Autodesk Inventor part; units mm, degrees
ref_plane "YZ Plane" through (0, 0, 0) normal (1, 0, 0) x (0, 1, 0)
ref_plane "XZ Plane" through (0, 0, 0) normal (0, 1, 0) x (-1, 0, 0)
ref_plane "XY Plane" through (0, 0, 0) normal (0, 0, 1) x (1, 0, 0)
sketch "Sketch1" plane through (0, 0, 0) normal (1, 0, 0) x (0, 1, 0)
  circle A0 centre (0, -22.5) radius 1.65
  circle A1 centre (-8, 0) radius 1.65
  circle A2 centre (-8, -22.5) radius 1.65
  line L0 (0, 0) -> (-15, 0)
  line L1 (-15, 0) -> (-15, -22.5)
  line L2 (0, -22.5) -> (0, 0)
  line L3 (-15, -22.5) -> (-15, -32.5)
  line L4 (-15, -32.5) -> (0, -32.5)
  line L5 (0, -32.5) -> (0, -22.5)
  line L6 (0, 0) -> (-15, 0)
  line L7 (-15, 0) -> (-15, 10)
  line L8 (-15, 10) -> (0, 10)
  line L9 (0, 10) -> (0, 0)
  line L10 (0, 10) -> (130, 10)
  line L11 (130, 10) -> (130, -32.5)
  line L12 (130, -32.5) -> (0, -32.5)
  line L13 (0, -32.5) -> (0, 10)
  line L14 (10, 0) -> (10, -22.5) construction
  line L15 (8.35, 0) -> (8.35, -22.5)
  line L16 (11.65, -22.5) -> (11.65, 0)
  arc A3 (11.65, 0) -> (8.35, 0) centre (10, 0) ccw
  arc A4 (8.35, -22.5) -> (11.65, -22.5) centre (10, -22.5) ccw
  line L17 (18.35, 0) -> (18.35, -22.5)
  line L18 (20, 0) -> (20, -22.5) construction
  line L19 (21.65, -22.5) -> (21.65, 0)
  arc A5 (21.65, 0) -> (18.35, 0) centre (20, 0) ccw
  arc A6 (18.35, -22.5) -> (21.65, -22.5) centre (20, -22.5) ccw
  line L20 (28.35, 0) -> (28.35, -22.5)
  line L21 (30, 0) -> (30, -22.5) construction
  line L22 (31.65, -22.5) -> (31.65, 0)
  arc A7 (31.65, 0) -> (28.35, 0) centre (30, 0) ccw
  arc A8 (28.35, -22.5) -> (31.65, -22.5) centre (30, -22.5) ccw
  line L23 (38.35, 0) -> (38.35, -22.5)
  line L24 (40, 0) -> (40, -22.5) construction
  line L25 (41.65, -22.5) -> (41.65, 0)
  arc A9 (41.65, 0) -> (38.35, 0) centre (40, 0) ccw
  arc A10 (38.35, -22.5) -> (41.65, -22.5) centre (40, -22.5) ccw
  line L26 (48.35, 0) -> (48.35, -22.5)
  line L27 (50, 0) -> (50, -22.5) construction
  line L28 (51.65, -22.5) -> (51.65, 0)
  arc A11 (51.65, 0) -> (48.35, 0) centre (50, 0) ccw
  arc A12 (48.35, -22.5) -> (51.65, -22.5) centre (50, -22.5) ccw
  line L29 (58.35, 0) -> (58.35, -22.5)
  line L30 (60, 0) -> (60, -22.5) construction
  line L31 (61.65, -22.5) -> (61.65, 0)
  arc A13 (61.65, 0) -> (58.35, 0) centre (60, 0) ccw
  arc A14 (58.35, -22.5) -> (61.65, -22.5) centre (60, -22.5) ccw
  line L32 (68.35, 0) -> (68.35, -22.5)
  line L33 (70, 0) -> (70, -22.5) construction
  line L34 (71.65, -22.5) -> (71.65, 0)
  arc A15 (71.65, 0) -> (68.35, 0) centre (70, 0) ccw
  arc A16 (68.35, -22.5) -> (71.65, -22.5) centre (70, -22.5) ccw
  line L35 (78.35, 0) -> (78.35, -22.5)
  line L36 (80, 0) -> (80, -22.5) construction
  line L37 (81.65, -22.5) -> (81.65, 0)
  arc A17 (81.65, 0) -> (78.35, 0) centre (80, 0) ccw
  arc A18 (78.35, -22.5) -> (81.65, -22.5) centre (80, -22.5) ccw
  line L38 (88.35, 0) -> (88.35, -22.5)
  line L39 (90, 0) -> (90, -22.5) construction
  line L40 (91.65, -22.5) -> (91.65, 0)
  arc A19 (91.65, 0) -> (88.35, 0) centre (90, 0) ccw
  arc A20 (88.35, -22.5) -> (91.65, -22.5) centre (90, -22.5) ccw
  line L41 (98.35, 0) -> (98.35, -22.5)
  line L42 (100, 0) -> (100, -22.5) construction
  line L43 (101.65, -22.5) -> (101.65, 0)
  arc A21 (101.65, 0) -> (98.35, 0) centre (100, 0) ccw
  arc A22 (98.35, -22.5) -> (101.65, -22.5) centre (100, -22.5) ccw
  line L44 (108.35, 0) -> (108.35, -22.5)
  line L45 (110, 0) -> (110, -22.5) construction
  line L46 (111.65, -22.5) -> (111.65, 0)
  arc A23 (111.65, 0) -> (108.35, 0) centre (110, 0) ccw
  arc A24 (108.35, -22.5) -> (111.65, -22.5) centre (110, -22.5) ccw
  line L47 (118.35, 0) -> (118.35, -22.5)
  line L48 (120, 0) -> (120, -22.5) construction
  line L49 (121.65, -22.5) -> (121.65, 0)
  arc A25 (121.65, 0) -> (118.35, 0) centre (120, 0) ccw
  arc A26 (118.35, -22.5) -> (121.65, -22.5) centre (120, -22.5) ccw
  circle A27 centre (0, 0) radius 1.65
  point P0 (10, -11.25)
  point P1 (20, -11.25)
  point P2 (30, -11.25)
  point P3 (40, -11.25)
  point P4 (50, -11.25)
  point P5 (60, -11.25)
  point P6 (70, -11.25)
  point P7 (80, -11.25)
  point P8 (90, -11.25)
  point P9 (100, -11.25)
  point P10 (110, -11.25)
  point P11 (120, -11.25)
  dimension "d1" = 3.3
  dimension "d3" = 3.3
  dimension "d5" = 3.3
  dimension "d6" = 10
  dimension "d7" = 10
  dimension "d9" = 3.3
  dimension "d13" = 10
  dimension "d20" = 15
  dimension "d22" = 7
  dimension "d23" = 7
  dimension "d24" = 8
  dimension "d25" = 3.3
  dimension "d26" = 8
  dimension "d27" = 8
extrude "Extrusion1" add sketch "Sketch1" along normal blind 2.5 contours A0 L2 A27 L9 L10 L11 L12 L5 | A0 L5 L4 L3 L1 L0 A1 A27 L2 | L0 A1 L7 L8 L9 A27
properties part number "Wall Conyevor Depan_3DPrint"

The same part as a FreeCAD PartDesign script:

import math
import FreeCAD as App
import Part
import Sketcher
from FreeCAD import Vector


def add_polygon(sketch, points):
    """Adds a closed chain of lines whose ends are joined by coincident constraints."""
    first, n = sketch.GeometryCount, len(points)
    for a, b in zip(points, points[1:] + points[:1]):
        sketch.addGeometry(Part.LineSegment(App.Vector(*a, 0), App.Vector(*b, 0)), False)
    for i in range(n):
        sketch.addConstraint(Sketcher.Constraint("Coincident", first + i, 2, first + (i + 1) % n, 1))

doc = App.newDocument("Part")
body = doc.addObject("PartDesign::Body", "Body")

# Sketch on YZ plane
sketch1 = body.newObject("Sketcher::SketchObject", "Sketch")
sketch1.AttachmentSupport = (doc.getObject("YZ_Plane"), [""])
sketch1.MapMode = "FlatFace"
add_polygon(sketch1, [(130, 10), (-15, 10), (-15, -32.5), (130, -32.5)])  # lines 0-3
sketch1.addGeometry(Part.Circle(Vector(0, -22.5, 0), Vector(0, 0, 1), 1.6), False)  # 4
sketch1.addGeometry(Part.Circle(Vector(0, 0, 0), Vector(0, 0, 1), 1.6), False)  # 5
sketch1.addGeometry(Part.LineSegment(Vector(8.3, -22.5, 0), Vector(8.3, 0, 0)), False)  # 6
sketch1.addGeometry(Part.ArcOfCircle(Part.Circle(Vector(10, 0, 0), Vector(0, 0, 1), 1.7), math.radians(0), math.radians(180)), False)  # 7
sketch1.addGeometry(Part.LineSegment(Vector(11.7, 0, 0), Vector(11.7, -22.5, 0)), False)  # 8
sketch1.addGeometry(Part.ArcOfCircle(Part.Circle(Vector(10, -22.5, 0), Vector(0, 0, 1), 1.7), math.radians(180), math.radians(360)), False)  # 9
sketch1.addGeometry(Part.LineSegment(Vector(18.4, -22.5, 0), Vector(18.4, 0, 0)), False)  # 10
sketch1.addGeometry(Part.ArcOfCircle(Part.Circle(Vector(20, 0, 0), Vector(0, 0, 1), 1.6), math.radians(0), math.radians(180)), False)  # 11
sketch1.addGeometry(Part.LineSegment(Vector(21.6, 0, 0), Vector(21.6, -22.5, 0)), False)  # 12
sketch1.addGeometry(Part.ArcOfCircle(Part.Circle(Vector(20, -22.5, 0), Vector(0, 0, 1), 1.6), math.radians(180), math.radians(360)), False)  # 13
sketch1.addGeometry(Part.LineSegment(Vector(28.4, -22.5, 0), Vector(28.4, 0, 0)), False)  # 14
sketch1.addGeometry(Part.ArcOfCircle(Part.Circle(Vector(30, 0, 0), Vector(0, 0, 1), 1.6), math.radians(0), math.radians(180)), False)  # 15
sketch1.addGeometry(Part.LineSegment(Vector(31.6, 0, 0), Vector(31.6, -22.5, 0)), False)  # 16
sketch1.addGeometry(Part.ArcOfCircle(Part.Circle(Vector(30, -22.5, 0), Vector(0, 0, 1), 1.6), math.radians(180), math.radians(360)), False)  # 17
sketch1.addGeometry(Part.LineSegment(Vector(38.4, -22.5, 0), Vector(38.4, 0, 0)), False)  # 18
sketch1.addGeometry(Part.ArcOfCircle(Part.Circle(Vector(40, 0, 0), Vector(0, 0, 1), 1.6), math.radians(0), math.radians(180)), False)  # 19
sketch1.addGeometry(Part.LineSegment(Vector(41.6, 0, 0), Vector(41.6, -22.5, 0)), False)  # 20
sketch1.addGeometry(Part.ArcOfCircle(Part.Circle(Vector(40, -22.5, 0), Vector(0, 0, 1), 1.6), math.radians(180), math.radians(360)), False)  # 21
sketch1.addGeometry(Part.LineSegment(Vector(48.4, -22.5, 0), Vector(48.4, 0, 0)), False)  # 22
sketch1.addGeometry(Part.ArcOfCircle(Part.Circle(Vector(50, 0, 0), Vector(0, 0, 1), 1.6), math.radians(0), math.radians(180)), False)  # 23
sketch1.addGeometry(Part.LineSegment(Vector(51.6, 0, 0), Vector(51.6, -22.5, 0)), False)  # 24
sketch1.addGeometry(Part.ArcOfCircle(Part.Circle(Vector(50, -22.5, 0), Vector(0, 0, 1), 1.6), math.radians(180), math.radians(360)), False)  # 25
sketch1.addGeometry(Part.LineSegment(Vector(58.4, -22.5, 0), Vector(58.4, 0, 0)), False)  # 26
sketch1.addGeometry(Part.ArcOfCircle(Part.Circle(Vector(60, 0, 0), Vector(0, 0, 1), 1.6), math.radians(0), math.radians(180)), False)  # 27
sketch1.addGeometry(Part.LineSegment(Vector(61.6, 0, 0), Vector(61.6, -22.5, 0)), False)  # 28
sketch1.addGeometry(Part.ArcOfCircle(Part.Circle(Vector(60, -22.5, 0), Vector(0, 0, 1), 1.6), math.radians(180), math.radians(360)), False)  # 29
sketch1.addGeometry(Part.LineSegment(Vector(68.3, -22.5, 0), Vector(68.3, 0, 0)), False)  # 30
sketch1.addGeometry(Part.ArcOfCircle(Part.Circle(Vector(70, 0, 0), Vector(0, 0, 1), 1.7), math.radians(0), math.radians(180)), False)  # 31
sketch1.addGeometry(Part.LineSegment(Vector(71.7, 0, 0), Vector(71.7, -22.5, 0)), False)  # 32
sketch1.addGeometry(Part.ArcOfCircle(Part.Circle(Vector(70, -22.5, 0), Vector(0, 0, 1), 1.7), math.radians(180), math.radians(360)), False)  # 33
sketch1.addGeometry(Part.LineSegment(Vector(78.3, -22.5, 0), Vector(78.3, 0, 0)), False)  # 34
sketch1.addGeometry(Part.ArcOfCircle(Part.Circle(Vector(80, 0, 0), Vector(0, 0, 1), 1.7), math.radians(0), math.radians(180)), False)  # 35
sketch1.addGeometry(Part.LineSegment(Vector(81.7, 0, 0), Vector(81.7, -22.5, 0)), False)  # 36
sketch1.addGeometry(Part.ArcOfCircle(Part.Circle(Vector(80, -22.5, 0), Vector(0, 0, 1), 1.7), math.radians(180), math.radians(360)), False)  # 37
sketch1.addGeometry(Part.LineSegment(Vector(88.3, -22.5, 0), Vector(88.3, 0, 0)), False)  # 38
sketch1.addGeometry(Part.ArcOfCircle(Part.Circle(Vector(90, 0, 0), Vector(0, 0, 1), 1.7), math.radians(0), math.radians(180)), False)  # 39
sketch1.addGeometry(Part.LineSegment(Vector(91.7, 0, 0), Vector(91.7, -22.5, 0)), False)  # 40
sketch1.addGeometry(Part.ArcOfCircle(Part.Circle(Vector(90, -22.5, 0), Vector(0, 0, 1), 1.7), math.radians(180), math.radians(360)), False)  # 41
sketch1.addGeometry(Part.LineSegment(Vector(98.3, -22.5, 0), Vector(98.3, 0, 0)), False)  # 42
sketch1.addGeometry(Part.ArcOfCircle(Part.Circle(Vector(100, 0, 0), Vector(0, 0, 1), 1.7), math.radians(0), math.radians(180)), False)  # 43
sketch1.addGeometry(Part.LineSegment(Vector(101.7, 0, 0), Vector(101.7, -22.5, 0)), False)  # 44
sketch1.addGeometry(Part.ArcOfCircle(Part.Circle(Vector(100, -22.5, 0), Vector(0, 0, 1), 1.7), math.radians(180), math.radians(360)), False)  # 45
sketch1.addGeometry(Part.LineSegment(Vector(108.3, -22.5, 0), Vector(108.3, 0, 0)), False)  # 46
sketch1.addGeometry(Part.ArcOfCircle(Part.Circle(Vector(110, 0, 0), Vector(0, 0, 1), 1.7), math.radians(0), math.radians(180)), False)  # 47
sketch1.addGeometry(Part.LineSegment(Vector(111.7, 0, 0), Vector(111.7, -22.5, 0)), False)  # 48
sketch1.addGeometry(Part.ArcOfCircle(Part.Circle(Vector(110, -22.5, 0), Vector(0, 0, 1), 1.7), math.radians(180), math.radians(360)), False)  # 49
sketch1.addGeometry(Part.LineSegment(Vector(118.3, -22.5, 0), Vector(118.3, 0, 0)), False)  # 50
sketch1.addGeometry(Part.ArcOfCircle(Part.Circle(Vector(120, 0, 0), Vector(0, 0, 1), 1.7), math.radians(0), math.radians(180)), False)  # 51
sketch1.addGeometry(Part.LineSegment(Vector(121.7, 0, 0), Vector(121.7, -22.5, 0)), False)  # 52
sketch1.addGeometry(Part.ArcOfCircle(Part.Circle(Vector(120, -22.5, 0), Vector(0, 0, 1), 1.7), math.radians(180), math.radians(360)), False)  # 53
sketch1.addGeometry(Part.Circle(Vector(-8, -22.5, 0), Vector(0, 0, 1), 1.6), False)  # 54
sketch1.addGeometry(Part.Circle(Vector(-8, 0, 0), Vector(0, 0, 1), 1.6), False)  # 55
sketch1.addConstraint([
    Sketcher.Constraint("Tangent", 6, 2, 7, 2),
    Sketcher.Constraint("Tangent", 7, 1, 8, 1),
    Sketcher.Constraint("Tangent", 8, 2, 9, 2),
    Sketcher.Constraint("Tangent", 9, 1, 6, 1),
    Sketcher.Constraint("Tangent", 10, 2, 11, 2),
    Sketcher.Constraint("Tangent", 11, 1, 12, 1),
    Sketcher.Constraint("Tangent", 12, 2, 13, 2),
    Sketcher.Constraint("Tangent", 13, 1, 10, 1),
    Sketcher.Constraint("Tangent", 14, 2, 15, 2),
    Sketcher.Constraint("Tangent", 15, 1, 16, 1),
    Sketcher.Constraint("Tangent", 16, 2, 17, 2),
    Sketcher.Constraint("Tangent", 17, 1, 14, 1),
    Sketcher.Constraint("Tangent", 18, 2, 19, 2),
    Sketcher.Constraint("Tangent", 19, 1, 20, 1),
    Sketcher.Constraint("Tangent", 20, 2, 21, 2),
    Sketcher.Constraint("Tangent", 21, 1, 18, 1),
    Sketcher.Constraint("Tangent", 22, 2, 23, 2),
    Sketcher.Constraint("Tangent", 23, 1, 24, 1),
    Sketcher.Constraint("Tangent", 24, 2, 25, 2),
    Sketcher.Constraint("Tangent", 25, 1, 22, 1),
    Sketcher.Constraint("Tangent", 26, 2, 27, 2),
    Sketcher.Constraint("Tangent", 27, 1, 28, 1),
    Sketcher.Constraint("Tangent", 28, 2, 29, 2),
    Sketcher.Constraint("Tangent", 29, 1, 26, 1),
    Sketcher.Constraint("Tangent", 30, 2, 31, 2),
    Sketcher.Constraint("Tangent", 31, 1, 32, 1),
    Sketcher.Constraint("Tangent", 32, 2, 33, 2),
    Sketcher.Constraint("Tangent", 33, 1, 30, 1),
    Sketcher.Constraint("Tangent", 34, 2, 35, 2),
    Sketcher.Constraint("Tangent", 35, 1, 36, 1),
    Sketcher.Constraint("Tangent", 36, 2, 37, 2),
    Sketcher.Constraint("Tangent", 37, 1, 34, 1),
    Sketcher.Constraint("Tangent", 38, 2, 39, 2),
    Sketcher.Constraint("Tangent", 39, 1, 40, 1),
    Sketcher.Constraint("Tangent", 40, 2, 41, 2),
    Sketcher.Constraint("Tangent", 41, 1, 38, 1),
    Sketcher.Constraint("Tangent", 42, 2, 43, 2),
    Sketcher.Constraint("Tangent", 43, 1, 44, 1),
    Sketcher.Constraint("Tangent", 44, 2, 45, 2),
    Sketcher.Constraint("Tangent", 45, 1, 42, 1),
    Sketcher.Constraint("Tangent", 46, 2, 47, 2),
    Sketcher.Constraint("Tangent", 47, 1, 48, 1),
    Sketcher.Constraint("Tangent", 48, 2, 49, 2),
    Sketcher.Constraint("Tangent", 49, 1, 46, 1),
    Sketcher.Constraint("Tangent", 50, 2, 51, 2),
    Sketcher.Constraint("Tangent", 51, 1, 52, 1),
    Sketcher.Constraint("Tangent", 52, 2, 53, 2),
    Sketcher.Constraint("Tangent", 53, 1, 50, 1),
    Sketcher.Constraint("Horizontal", 0),
    Sketcher.Constraint("Vertical", 1),
    Sketcher.Constraint("Horizontal", 2),
    Sketcher.Constraint("Vertical", 3),
    Sketcher.Constraint("Vertical", 6),
    Sketcher.Constraint("Vertical", 8),
    Sketcher.Constraint("Vertical", 10),
    Sketcher.Constraint("Vertical", 12),
    Sketcher.Constraint("Vertical", 14),
    Sketcher.Constraint("Vertical", 16),
    Sketcher.Constraint("Vertical", 18),
    Sketcher.Constraint("Vertical", 20),
    Sketcher.Constraint("Vertical", 22),
    Sketcher.Constraint("Vertical", 24),
    Sketcher.Constraint("Vertical", 26),
    Sketcher.Constraint("Vertical", 28),
    Sketcher.Constraint("Vertical", 30),
    Sketcher.Constraint("Vertical", 32),
    Sketcher.Constraint("Vertical", 34),
    Sketcher.Constraint("Vertical", 36),
    Sketcher.Constraint("Vertical", 38),
    Sketcher.Constraint("Vertical", 40),
    Sketcher.Constraint("Vertical", 42),
    Sketcher.Constraint("Vertical", 44),
    Sketcher.Constraint("Vertical", 46),
    Sketcher.Constraint("Vertical", 48),
    Sketcher.Constraint("Vertical", 50),
    Sketcher.Constraint("Vertical", 52),
    Sketcher.Constraint("Coincident", 5, 3, -1, 1),
    Sketcher.Constraint("Equal", 4, 5),
    Sketcher.Constraint("Equal", 5, 7),
    Sketcher.Constraint("Equal", 9, 11),
    Sketcher.Constraint("Equal", 13, 15),
    Sketcher.Constraint("Equal", 17, 19),
    Sketcher.Constraint("Equal", 21, 23),
    Sketcher.Constraint("Equal", 25, 27),
    Sketcher.Constraint("Equal", 29, 31),
    Sketcher.Constraint("Equal", 33, 35),
    Sketcher.Constraint("Equal", 37, 39),
    Sketcher.Constraint("Equal", 41, 43),
    Sketcher.Constraint("Equal", 45, 47),
    Sketcher.Constraint("Equal", 49, 51),
    Sketcher.Constraint("Equal", 53, 54),
    Sketcher.Constraint("Equal", 54, 55),
    Sketcher.Constraint("PointOnObject", 4, 3, -2),
    Sketcher.Constraint("PointOnObject", 7, 3, -1),
    Sketcher.Constraint("PointOnObject", 11, 3, -1),
    Sketcher.Constraint("PointOnObject", 15, 3, -1),
    Sketcher.Constraint("PointOnObject", 19, 3, -1),
    Sketcher.Constraint("PointOnObject", 23, 3, -1),
    Sketcher.Constraint("PointOnObject", 27, 3, -1),
    Sketcher.Constraint("PointOnObject", 31, 3, -1),
    Sketcher.Constraint("PointOnObject", 35, 3, -1),
    Sketcher.Constraint("PointOnObject", 39, 3, -1),
    Sketcher.Constraint("PointOnObject", 43, 3, -1),
    Sketcher.Constraint("PointOnObject", 47, 3, -1),
    Sketcher.Constraint("PointOnObject", 51, 3, -1),
    Sketcher.Constraint("PointOnObject", 55, 3, -1),
    Sketcher.Constraint("Horizontal", 4, 3, 9, 3),
    Sketcher.Constraint("Horizontal", 9, 3, 13, 3),
    Sketcher.Constraint("Horizontal", 13, 3, 17, 3),
    Sketcher.Constraint("Horizontal", 17, 3, 21, 3),
    Sketcher.Constraint("Horizontal", 21, 3, 25, 3),
    Sketcher.Constraint("Horizontal", 25, 3, 29, 3),
    Sketcher.Constraint("Horizontal", 29, 3, 33, 3),
    Sketcher.Constraint("Horizontal", 33, 3, 37, 3),
    Sketcher.Constraint("Horizontal", 37, 3, 41, 3),
    Sketcher.Constraint("Horizontal", 41, 3, 45, 3),
    Sketcher.Constraint("Horizontal", 45, 3, 49, 3),
    Sketcher.Constraint("Horizontal", 49, 3, 53, 3),
    Sketcher.Constraint("Horizontal", 53, 3, 54, 3),
    Sketcher.Constraint("Vertical", 54, 3, 55, 3),
    Sketcher.Constraint("Diameter", 4, 3.3),
    Sketcher.Constraint("DistanceX", -1, 1, 7, 3, 10.0),
    Sketcher.Constraint("DistanceX", 54, 3, -1, 1, 8.0),
    Sketcher.Constraint("DistanceX", 0, 2, -1, 1, 15.0),
    Sketcher.Constraint("DistanceY", -1, 1, 0, 2, 10.0),
    Sketcher.Constraint("DistanceX", 0, 2, 0, 1, 145.0),
    Sketcher.Constraint("DistanceY", 1, 2, 1, 1, 42.5),
    Sketcher.Constraint("DistanceY", 6, 1, 6, 2, 22.5),
    Sketcher.Constraint("DistanceX", -1, 1, 11, 3, 20.0),
    Sketcher.Constraint("DistanceX", -1, 1, 15, 3, 30.0),
    Sketcher.Constraint("DistanceX", -1, 1, 19, 3, 40.0),
    Sketcher.Constraint("DistanceX", -1, 1, 23, 3, 50.0),
    Sketcher.Constraint("DistanceX", -1, 1, 27, 3, 60.0),
    Sketcher.Constraint("DistanceX", -1, 1, 31, 3, 70.0),
    Sketcher.Constraint("DistanceX", -1, 1, 35, 3, 80.0),
    Sketcher.Constraint("DistanceX", -1, 1, 39, 3, 90.0),
    Sketcher.Constraint("DistanceX", -1, 1, 43, 3, 100.0),
    Sketcher.Constraint("DistanceX", -1, 1, 47, 3, 110.0),
    Sketcher.Constraint("DistanceX", -1, 1, 51, 3, 120.0),
])
pad1 = body.newObject("PartDesign::Pad", "Pad")
pad1.Profile = sketch1
pad1.Length = 2.5

doc.recompute()
